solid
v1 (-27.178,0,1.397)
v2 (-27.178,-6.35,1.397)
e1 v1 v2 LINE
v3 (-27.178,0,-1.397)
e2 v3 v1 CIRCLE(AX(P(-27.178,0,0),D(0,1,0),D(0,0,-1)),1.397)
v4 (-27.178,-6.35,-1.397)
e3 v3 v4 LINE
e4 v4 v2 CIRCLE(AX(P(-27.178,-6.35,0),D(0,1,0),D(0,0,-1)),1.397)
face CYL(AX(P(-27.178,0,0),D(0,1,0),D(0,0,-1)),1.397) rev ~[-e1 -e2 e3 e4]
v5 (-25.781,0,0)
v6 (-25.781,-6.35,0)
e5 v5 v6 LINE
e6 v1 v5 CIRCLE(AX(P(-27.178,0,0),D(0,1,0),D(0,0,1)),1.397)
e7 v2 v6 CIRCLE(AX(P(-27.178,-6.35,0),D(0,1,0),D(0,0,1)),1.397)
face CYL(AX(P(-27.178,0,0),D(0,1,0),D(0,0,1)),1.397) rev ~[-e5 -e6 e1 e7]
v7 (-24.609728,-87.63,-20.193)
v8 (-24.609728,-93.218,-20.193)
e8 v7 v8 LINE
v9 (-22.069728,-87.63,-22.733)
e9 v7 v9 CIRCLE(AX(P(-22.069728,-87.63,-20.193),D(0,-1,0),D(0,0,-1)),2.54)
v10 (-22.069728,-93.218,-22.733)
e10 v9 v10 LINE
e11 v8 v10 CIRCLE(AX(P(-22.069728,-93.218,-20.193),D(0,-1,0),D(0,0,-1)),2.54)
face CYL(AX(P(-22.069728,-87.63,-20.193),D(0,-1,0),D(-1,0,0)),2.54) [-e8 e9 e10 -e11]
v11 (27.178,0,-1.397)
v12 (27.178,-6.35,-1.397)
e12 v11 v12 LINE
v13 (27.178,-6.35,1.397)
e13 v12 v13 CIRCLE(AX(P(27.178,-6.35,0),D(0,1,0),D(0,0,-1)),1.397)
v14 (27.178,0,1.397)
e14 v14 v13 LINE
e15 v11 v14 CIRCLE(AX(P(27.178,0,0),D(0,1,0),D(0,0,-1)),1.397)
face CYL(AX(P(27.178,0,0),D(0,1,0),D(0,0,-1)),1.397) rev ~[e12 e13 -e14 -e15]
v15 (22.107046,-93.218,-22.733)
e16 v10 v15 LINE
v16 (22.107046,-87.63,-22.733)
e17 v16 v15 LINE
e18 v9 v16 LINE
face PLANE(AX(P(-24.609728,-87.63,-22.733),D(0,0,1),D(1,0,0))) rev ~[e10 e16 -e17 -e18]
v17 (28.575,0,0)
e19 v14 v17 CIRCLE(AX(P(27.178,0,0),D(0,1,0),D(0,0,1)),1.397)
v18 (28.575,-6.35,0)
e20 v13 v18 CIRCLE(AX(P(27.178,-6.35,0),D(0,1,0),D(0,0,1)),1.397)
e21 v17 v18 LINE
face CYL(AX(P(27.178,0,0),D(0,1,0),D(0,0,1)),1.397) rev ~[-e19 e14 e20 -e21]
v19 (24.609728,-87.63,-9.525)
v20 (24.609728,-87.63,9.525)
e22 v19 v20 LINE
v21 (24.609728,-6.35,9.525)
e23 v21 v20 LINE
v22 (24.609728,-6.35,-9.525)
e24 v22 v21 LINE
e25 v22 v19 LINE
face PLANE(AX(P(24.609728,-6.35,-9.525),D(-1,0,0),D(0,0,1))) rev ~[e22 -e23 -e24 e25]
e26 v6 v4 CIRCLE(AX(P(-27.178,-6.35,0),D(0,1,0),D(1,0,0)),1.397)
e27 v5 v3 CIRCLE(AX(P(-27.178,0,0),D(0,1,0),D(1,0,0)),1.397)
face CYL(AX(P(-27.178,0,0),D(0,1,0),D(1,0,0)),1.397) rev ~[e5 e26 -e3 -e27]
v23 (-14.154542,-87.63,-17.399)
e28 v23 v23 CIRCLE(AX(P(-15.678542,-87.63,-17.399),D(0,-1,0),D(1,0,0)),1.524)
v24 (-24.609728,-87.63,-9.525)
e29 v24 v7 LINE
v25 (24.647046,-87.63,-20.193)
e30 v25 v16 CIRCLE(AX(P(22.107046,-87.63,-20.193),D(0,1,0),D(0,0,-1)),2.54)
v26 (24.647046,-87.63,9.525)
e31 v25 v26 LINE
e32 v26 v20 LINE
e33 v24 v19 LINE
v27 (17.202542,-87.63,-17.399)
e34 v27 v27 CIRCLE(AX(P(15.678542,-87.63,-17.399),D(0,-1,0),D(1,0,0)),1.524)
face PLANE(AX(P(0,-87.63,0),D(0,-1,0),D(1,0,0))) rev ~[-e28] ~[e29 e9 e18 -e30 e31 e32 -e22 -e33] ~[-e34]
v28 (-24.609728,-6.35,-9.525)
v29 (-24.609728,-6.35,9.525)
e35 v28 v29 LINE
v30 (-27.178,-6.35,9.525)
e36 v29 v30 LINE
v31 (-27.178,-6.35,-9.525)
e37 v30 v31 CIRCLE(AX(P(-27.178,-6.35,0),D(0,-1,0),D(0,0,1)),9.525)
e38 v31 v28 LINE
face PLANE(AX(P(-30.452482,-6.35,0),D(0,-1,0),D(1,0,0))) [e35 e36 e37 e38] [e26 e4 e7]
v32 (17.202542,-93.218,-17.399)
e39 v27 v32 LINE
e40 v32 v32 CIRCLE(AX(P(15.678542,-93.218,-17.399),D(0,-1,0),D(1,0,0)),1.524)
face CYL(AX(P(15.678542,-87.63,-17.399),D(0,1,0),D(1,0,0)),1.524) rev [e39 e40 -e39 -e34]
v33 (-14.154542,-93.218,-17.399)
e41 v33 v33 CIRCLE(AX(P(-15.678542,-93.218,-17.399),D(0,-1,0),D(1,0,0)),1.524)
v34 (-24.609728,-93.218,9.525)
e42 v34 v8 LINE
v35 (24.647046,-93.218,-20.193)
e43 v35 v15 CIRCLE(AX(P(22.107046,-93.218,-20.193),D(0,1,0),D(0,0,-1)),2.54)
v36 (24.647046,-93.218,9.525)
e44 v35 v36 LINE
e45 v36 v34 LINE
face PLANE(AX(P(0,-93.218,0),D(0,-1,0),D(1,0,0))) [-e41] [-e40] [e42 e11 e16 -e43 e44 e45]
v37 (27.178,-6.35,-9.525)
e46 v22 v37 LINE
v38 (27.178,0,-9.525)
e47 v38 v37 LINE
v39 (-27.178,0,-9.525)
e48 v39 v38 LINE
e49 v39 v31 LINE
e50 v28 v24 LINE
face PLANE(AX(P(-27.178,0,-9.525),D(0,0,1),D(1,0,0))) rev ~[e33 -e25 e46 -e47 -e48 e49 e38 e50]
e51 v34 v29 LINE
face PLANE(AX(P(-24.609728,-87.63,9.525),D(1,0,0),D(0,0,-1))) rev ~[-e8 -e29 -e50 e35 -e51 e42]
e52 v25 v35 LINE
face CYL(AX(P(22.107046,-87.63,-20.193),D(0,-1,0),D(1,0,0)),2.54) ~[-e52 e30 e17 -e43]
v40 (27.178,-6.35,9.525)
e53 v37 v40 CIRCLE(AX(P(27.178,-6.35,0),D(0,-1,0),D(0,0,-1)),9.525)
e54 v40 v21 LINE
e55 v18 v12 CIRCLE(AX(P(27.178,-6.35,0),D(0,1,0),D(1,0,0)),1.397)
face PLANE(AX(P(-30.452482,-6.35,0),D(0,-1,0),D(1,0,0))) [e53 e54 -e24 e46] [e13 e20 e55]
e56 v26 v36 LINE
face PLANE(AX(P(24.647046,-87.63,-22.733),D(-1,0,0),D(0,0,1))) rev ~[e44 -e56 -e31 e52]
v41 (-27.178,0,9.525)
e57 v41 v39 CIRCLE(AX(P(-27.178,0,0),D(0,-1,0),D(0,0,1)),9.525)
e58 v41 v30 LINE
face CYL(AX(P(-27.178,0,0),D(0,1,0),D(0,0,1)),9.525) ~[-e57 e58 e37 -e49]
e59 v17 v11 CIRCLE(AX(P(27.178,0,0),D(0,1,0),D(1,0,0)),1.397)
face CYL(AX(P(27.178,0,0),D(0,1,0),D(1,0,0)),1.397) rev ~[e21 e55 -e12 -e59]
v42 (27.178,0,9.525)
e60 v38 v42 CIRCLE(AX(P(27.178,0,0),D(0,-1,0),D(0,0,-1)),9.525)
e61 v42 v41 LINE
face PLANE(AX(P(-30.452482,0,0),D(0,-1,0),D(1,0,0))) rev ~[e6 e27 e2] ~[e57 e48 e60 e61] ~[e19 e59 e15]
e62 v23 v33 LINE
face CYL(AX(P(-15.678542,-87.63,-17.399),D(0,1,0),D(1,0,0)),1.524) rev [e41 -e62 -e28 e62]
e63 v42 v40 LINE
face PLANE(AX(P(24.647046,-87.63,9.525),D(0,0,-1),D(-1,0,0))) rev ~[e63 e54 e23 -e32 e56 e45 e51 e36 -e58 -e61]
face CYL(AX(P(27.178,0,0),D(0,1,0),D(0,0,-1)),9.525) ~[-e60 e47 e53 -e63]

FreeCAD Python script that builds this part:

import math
import FreeCAD as App
import Part
import Sketcher

V = App.Vector
Q = App.Units.Quantity


def edges_at(feature, points):
    """Names of the edges that pass closest to the given points."""
    edges = feature.Shape.Edges
    near = lambda p: min(range(len(edges)), key=lambda i: edges[i].distToShape(Part.Vertex(*p))[0])
    return sorted({f"Edge{near(p) + 1}" for p in points})


def add_polygon(sketch, points):
    """Adds a closed chain of lines whose ends are joined by coincident constraints."""
    first, n = sketch.GeometryCount, len(points)
    for a, b in zip(points, points[1:] + points[:1]):
        sketch.addGeometry(Part.LineSegment(App.Vector(*a, 0), App.Vector(*b, 0)), False)
    for i in range(n):
        sketch.addConstraint(Sketcher.Constraint("Coincident", first + i, 2, first + (i + 1) % n, 1))

doc = App.newDocument("Part")
body = doc.addObject("PartDesign::Body", "Body")

sketch1 = body.newObject("Sketcher::SketchObject", "Sketch")
sketch1.AttachmentSupport = (doc.getObject("XZ_Plane"), [""])
sketch1.MapMode = "FlatFace"
sketch1.addGeometry(Part.ArcOfCircle(Part.Circle(V(-27.2, 0, 0), V(0, 0, 1), 9.5), math.radians(90), math.radians(270)), False)
sketch1.addGeometry(Part.LineSegment(V(-27.2, -9.5, 0), V(27.2, -9.5, 0)), False)
sketch1.addGeometry(Part.ArcOfCircle(Part.Circle(V(27.2, 0, 0), V(0, 0, 1), 9.5), math.radians(-90), math.radians(90)), False)
sketch1.addGeometry(Part.LineSegment(V(27.2, 9.5, 0), V(-27.2, 9.5, 0)), False)
sketch1.addGeometry(Part.ArcOfCircle(Part.Circle(V(27.2, 0, 0), V(0, 0, 1), 1.4), math.radians(90), math.radians(270)), False)
sketch1.addGeometry(Part.ArcOfCircle(Part.Circle(V(27.2, 0, 0), V(0, 0, 1), 1.4), math.radians(0), math.radians(90)), False)
sketch1.addGeometry(Part.ArcOfCircle(Part.Circle(V(27.2, 0, 0), V(0, 0, 1), 1.4), math.radians(-90), math.radians(0)), False)
sketch1.addGeometry(Part.ArcOfCircle(Part.Circle(V(-27.2, 0, 0), V(0, 0, 1), 1.4), math.radians(90), math.radians(270)), False)
sketch1.addGeometry(Part.ArcOfCircle(Part.Circle(V(-27.2, 0, 0), V(0, 0, 1), 1.4), math.radians(0), math.radians(90)), False)
sketch1.addGeometry(Part.ArcOfCircle(Part.Circle(V(-27.2, 0, 0), V(0, 0, 1), 1.4), math.radians(-90), math.radians(0)), False)
sketch1.addConstraint(Sketcher.Constraint("Tangent", 0, 2, 1, 1))
sketch1.addConstraint(Sketcher.Constraint("Tangent", 1, 2, 2, 1))
sketch1.addConstraint(Sketcher.Constraint("Tangent", 2, 2, 3, 1))
sketch1.addConstraint(Sketcher.Constraint("Tangent", 3, 2, 0, 1))
sketch1.addConstraint(Sketcher.Constraint("Tangent", 4, 1, 5, 2))
sketch1.addConstraint(Sketcher.Constraint("Tangent", 5, 1, 6, 2))
sketch1.addConstraint(Sketcher.Constraint("Tangent", 6, 1, 4, 2))
sketch1.addConstraint(Sketcher.Constraint("Tangent", 7, 1, 8, 2))
sketch1.addConstraint(Sketcher.Constraint("Tangent", 8, 1, 9, 2))
sketch1.addConstraint(Sketcher.Constraint("Tangent", 9, 1, 7, 2))
sketch1.addConstraint(Sketcher.Constraint("Horizontal", 1))
sketch1.addConstraint(Sketcher.Constraint("Horizontal", 3))
sketch1.addConstraint(Sketcher.Constraint("Coincident", 4, 3, 2, 3))
sketch1.addConstraint(Sketcher.Constraint("Coincident", 7, 3, 0, 3))
sketch1.addConstraint(Sketcher.Constraint("Equal", 6, 7))
sketch1.addConstraint(Sketcher.Constraint("Symmetric", 0, 3, 2, 3, -1, 1))
sketch1.addConstraint(Sketcher.Constraint("PointOnObject", 5, 1, -1))
sketch1.addConstraint(Sketcher.Constraint("PointOnObject", 8, 1, -1))
sketch1.addConstraint(Sketcher.Constraint("Vertical", 2, 2, 4, 1))
sketch1.addConstraint(Sketcher.Constraint("Vertical", 4, 1, 6, 1))
sketch1.addConstraint(Sketcher.Constraint("Vertical", 3, 2, 7, 1))
sketch1.addConstraint(Sketcher.Constraint("Vertical", 7, 1, 9, 1))
sketch1.addConstraint(Sketcher.Constraint("Radius", 0, Q("0.375 in")))
sketch1.addConstraint(Sketcher.Constraint("Radius", 4, Q("0.055 in")))
sketch1.addConstraint(Sketcher.Constraint("DistanceX", 1, 1, 1, 2, Q("2.14 in")))
pad1 = body.newObject("PartDesign::Pad", "Pad")
pad1.Profile = sketch1
pad1.Length = Q("0.25 in")

sketch2 = body.newObject("Sketcher::SketchObject", "Sketch001")
sketch2.AttachmentSupport = (doc.getObject("XZ_Plane"), [""])
sketch2.MapMode = "FlatFace"
sketch2.AttachmentOffset = App.Placement(V(0, 0, 0.25 * 25.4), App.Rotation())
add_polygon(sketch2, [(-25, 10), (-25, -10), (25, -10), (25, 10)])
sketch2.addConstraint(Sketcher.Constraint("Vertical", 0))
sketch2.addConstraint(Sketcher.Constraint("Horizontal", 1))
sketch2.addConstraint(Sketcher.Constraint("Vertical", 2))
sketch2.addConstraint(Sketcher.Constraint("Horizontal", 3))
sketch2.addConstraint(Sketcher.Constraint("Symmetric", 0, 2, 2, 2, -1, 1))
sketch2.addConstraint(Sketcher.Constraint("DistanceY", 0, 2, 0, 1, Q("0.75 in")))
sketch2.addConstraint(Sketcher.Constraint("DistanceX", 1, 1, 1, 2, Q("49.219456 mm")))
pad2 = body.newObject("PartDesign::Pad", "Pad001")
pad2.Profile = sketch2
pad2.Length = Q("3.2 in")

sketch3 = body.newObject("Sketcher::SketchObject", "Sketch002")
sketch3.AttachmentSupport = (doc.getObject("XZ_Plane"), [""])
sketch3.MapMode = "FlatFace"
sketch3.AttachmentOffset = App.Placement(V(0, 0, 3.45 * 25.4), App.Rotation())
add_polygon(sketch3, [(-24.6, 9.5), (-24.6, -22.7), (24.6, -22.7), (24.6, 9.5)])
sketch3.addGeometry(Part.Circle(V(-15.7, -17.4, 0), V(0, 0, 1), 1.5), False)
sketch3.addGeometry(Part.Circle(V(15.7, -17.4, 0), V(0, 0, 1), 1.5), False)
sketch3.addConstraint(Sketcher.Constraint("Vertical", 0))
sketch3.addConstraint(Sketcher.Constraint("Horizontal", 1))
sketch3.addConstraint(Sketcher.Constraint("Vertical", 2))
sketch3.addConstraint(Sketcher.Constraint("Horizontal", 3))
sketch3.addConstraint(Sketcher.Constraint("Equal", 4, 5))
sketch3.addConstraint(Sketcher.Constraint("Symmetric", 4, 3, 5, 3, -2))
sketch3.addConstraint(Sketcher.Constraint("Diameter", 4, Q("0.12 in")))
sketch3.addConstraint(Sketcher.Constraint("DistanceY", 0, 2, 0, 1, Q("1.27 in")))
sketch3.addConstraint(Sketcher.Constraint("DistanceY", 0, 2, 4, 3, Q("0.21 in")))
sketch3.addConstraint(Sketcher.Constraint("DistanceY", 4, 3, -1, 1, Q("0.685 in")))
sketch3.addConstraint(Sketcher.Constraint("DistanceX", 1, 1, 1, 2, Q("49.256774 mm")))
sketch3.addConstraint(Sketcher.Constraint("DistanceX", 4, 3, -1, 1, Q("15.678542 mm")))
sketch3.addConstraint(Sketcher.Constraint("DistanceX", 0, 2, 5, 3, Q("40.288269 mm")))
pad3 = body.newObject("PartDesign::Pad", "Pad002")
pad3.Profile = sketch3
pad3.Length = Q("0.22 in")
doc.recompute()

fillet = body.newObject("PartDesign::Fillet", "Fillet")
fillet.Base = (pad3, edges_at(pad3, [(-24.61, -90.424, -22.733), (24.647, -90.424, -22.733)]))
fillet.Radius = Q("0.1 in")

doc.recompute()
